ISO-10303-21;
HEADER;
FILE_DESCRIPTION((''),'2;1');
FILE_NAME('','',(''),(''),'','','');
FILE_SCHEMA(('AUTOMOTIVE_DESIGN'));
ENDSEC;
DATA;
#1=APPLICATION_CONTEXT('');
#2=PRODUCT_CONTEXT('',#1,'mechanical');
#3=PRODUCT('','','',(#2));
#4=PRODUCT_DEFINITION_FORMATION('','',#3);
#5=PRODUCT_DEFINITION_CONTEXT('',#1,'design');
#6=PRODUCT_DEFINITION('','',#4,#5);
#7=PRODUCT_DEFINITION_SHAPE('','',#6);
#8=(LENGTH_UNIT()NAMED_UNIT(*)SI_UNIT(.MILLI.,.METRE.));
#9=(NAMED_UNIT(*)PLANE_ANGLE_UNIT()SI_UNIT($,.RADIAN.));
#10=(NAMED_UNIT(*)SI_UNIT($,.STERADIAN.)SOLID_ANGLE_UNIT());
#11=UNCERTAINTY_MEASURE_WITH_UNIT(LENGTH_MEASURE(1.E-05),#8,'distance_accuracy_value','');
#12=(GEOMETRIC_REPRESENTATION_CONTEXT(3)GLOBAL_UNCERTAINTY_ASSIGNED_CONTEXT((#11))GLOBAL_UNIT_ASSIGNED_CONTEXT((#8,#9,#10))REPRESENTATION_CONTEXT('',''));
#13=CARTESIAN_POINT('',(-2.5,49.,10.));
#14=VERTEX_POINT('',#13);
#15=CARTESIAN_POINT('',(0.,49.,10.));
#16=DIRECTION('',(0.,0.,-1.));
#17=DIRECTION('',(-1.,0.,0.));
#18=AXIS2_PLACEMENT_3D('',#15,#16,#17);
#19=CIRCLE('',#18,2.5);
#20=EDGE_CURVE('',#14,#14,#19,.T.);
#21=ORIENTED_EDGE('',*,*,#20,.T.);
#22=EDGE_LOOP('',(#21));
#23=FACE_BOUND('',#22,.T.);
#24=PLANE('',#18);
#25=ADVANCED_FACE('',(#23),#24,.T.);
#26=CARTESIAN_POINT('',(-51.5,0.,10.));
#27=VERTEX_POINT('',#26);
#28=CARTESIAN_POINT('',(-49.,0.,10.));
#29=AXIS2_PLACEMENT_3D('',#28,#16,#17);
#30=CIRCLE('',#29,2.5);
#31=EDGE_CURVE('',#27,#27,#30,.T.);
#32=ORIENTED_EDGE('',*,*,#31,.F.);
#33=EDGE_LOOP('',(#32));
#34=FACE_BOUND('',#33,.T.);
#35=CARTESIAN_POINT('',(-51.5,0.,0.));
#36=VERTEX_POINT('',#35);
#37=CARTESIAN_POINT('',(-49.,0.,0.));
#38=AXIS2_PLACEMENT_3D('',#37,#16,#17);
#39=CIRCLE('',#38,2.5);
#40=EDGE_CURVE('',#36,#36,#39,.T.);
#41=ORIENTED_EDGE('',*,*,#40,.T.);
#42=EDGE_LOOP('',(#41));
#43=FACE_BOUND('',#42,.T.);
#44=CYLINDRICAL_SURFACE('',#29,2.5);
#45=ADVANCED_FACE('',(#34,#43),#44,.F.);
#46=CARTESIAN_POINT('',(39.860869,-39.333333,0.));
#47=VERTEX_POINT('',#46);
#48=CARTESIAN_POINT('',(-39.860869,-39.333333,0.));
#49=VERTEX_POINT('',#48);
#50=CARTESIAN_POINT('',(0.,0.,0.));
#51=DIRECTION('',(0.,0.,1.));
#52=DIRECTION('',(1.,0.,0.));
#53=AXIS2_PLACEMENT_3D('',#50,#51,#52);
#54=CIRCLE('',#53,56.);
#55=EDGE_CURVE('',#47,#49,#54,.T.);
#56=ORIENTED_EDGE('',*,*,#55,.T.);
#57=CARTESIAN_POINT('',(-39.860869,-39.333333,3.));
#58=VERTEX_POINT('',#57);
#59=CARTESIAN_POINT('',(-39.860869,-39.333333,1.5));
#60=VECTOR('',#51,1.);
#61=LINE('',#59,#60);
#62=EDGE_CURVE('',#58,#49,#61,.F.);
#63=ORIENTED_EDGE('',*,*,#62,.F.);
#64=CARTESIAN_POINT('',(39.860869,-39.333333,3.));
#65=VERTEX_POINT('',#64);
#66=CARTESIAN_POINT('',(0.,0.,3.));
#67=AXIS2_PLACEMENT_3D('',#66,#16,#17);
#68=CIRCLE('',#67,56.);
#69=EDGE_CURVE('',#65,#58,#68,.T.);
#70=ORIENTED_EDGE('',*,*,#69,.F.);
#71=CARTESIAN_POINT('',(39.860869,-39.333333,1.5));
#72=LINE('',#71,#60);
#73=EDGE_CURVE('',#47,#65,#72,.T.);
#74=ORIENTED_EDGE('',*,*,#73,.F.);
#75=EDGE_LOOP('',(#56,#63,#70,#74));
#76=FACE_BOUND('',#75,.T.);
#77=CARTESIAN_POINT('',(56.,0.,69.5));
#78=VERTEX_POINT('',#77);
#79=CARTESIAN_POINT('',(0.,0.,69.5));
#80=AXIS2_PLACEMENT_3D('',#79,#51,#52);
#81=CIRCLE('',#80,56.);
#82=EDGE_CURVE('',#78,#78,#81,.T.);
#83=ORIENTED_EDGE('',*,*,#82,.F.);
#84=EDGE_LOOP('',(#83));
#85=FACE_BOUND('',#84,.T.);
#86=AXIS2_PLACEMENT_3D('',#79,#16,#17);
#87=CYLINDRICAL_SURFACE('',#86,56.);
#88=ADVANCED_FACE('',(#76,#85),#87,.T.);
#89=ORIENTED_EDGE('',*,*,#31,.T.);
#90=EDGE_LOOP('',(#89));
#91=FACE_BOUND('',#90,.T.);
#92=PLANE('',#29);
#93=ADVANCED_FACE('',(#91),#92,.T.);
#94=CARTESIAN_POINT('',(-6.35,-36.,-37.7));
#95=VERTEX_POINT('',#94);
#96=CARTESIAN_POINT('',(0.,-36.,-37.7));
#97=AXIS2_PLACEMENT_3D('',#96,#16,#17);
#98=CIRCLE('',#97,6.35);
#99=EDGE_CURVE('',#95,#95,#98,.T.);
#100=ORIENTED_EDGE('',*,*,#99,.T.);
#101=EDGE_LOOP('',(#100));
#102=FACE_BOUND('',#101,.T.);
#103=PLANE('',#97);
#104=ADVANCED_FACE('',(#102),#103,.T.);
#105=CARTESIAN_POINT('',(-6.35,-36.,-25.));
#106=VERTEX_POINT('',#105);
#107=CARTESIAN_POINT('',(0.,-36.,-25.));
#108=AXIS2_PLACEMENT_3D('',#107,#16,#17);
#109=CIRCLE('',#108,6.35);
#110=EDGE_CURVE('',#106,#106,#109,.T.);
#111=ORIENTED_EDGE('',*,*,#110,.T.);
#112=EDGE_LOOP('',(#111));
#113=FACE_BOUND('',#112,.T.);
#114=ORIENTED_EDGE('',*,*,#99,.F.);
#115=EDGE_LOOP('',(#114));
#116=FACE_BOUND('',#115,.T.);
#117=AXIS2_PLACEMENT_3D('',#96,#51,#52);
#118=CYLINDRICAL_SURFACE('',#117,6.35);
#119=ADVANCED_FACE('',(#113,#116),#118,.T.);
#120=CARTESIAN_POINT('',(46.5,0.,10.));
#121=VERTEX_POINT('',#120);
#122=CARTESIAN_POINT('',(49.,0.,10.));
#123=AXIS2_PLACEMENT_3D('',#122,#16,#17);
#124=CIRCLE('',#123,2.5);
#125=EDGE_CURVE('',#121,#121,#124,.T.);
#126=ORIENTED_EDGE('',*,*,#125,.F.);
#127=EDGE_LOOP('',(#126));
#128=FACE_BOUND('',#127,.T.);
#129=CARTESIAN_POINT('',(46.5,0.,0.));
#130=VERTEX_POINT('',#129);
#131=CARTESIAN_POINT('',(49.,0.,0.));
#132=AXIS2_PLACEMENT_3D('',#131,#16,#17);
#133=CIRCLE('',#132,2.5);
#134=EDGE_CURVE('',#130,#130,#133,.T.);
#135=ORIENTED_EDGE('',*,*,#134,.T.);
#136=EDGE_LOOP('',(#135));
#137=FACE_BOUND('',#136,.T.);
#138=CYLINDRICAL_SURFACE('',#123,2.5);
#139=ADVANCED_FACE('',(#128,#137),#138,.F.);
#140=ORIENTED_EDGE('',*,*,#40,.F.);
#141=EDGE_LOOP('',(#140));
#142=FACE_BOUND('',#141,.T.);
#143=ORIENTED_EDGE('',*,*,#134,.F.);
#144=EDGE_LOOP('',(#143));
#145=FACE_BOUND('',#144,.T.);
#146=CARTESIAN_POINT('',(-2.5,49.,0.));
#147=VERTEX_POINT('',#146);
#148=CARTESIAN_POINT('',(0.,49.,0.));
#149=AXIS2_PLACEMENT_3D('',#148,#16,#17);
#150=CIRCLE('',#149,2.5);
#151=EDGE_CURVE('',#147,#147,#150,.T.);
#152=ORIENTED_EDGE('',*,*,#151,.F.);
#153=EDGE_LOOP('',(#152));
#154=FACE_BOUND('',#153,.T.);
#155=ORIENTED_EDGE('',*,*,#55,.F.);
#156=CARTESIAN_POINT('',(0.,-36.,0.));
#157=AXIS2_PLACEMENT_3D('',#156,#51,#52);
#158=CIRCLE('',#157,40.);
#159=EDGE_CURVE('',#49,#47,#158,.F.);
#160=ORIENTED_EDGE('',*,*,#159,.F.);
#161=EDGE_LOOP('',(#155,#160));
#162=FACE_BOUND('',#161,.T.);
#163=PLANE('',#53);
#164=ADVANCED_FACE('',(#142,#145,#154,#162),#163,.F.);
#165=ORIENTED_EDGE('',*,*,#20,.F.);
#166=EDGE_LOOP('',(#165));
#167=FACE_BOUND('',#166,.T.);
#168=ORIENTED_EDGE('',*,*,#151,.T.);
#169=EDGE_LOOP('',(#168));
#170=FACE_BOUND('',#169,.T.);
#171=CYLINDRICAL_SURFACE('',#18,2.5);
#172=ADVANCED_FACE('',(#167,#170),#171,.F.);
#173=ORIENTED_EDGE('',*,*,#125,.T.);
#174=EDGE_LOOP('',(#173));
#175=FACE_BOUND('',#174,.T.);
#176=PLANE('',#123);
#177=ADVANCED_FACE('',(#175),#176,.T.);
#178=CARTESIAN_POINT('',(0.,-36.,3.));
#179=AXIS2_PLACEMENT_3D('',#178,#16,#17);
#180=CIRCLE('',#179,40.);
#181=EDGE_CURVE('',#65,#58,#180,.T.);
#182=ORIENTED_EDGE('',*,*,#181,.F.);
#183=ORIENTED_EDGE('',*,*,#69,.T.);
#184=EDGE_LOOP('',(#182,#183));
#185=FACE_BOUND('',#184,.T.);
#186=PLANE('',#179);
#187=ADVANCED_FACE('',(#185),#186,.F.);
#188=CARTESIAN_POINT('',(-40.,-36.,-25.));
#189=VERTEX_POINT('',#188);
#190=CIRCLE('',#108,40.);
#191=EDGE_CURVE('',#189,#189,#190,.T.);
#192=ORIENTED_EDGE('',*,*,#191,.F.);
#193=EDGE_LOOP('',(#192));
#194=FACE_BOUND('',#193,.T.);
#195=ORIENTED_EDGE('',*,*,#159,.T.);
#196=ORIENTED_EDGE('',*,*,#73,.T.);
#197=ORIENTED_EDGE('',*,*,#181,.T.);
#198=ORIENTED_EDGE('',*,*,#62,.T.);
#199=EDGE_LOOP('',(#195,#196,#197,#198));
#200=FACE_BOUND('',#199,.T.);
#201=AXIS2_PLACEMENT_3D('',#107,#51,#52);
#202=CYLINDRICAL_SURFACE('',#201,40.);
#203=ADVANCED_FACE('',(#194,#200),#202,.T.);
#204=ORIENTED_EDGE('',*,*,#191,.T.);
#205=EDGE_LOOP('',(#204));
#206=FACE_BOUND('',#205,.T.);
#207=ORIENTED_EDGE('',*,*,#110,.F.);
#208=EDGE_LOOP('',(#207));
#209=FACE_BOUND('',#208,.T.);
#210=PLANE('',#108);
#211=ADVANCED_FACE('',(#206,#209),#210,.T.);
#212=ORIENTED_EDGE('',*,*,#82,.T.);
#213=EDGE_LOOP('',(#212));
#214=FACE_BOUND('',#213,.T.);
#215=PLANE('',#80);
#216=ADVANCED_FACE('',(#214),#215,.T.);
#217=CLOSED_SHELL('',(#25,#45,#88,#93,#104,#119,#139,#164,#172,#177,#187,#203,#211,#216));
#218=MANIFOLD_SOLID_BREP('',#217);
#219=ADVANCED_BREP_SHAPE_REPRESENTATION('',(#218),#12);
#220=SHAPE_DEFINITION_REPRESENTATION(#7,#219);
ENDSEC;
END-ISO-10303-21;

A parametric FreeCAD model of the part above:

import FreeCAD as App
import Part
import Sketcher

V = App.Vector
Q = App.Units.Quantity

doc = App.newDocument("Part")
body = doc.addObject("PartDesign::Body", "Body")

# Sketch on XY plane
sketch1 = body.newObject("Sketcher::SketchObject", "Sketch")
sketch1.AttachmentSupport = (doc.getObject("XY_Plane"), [""])
sketch1.MapMode = "FlatFace"
sketch1.addGeometry(Part.Circle(V(0, 0, 0), V(0, 0, 1), 56), False)
sketch1.addConstraint(Sketcher.Constraint("Coincident", 0, 3, -1, 1))
sketch1.addConstraint(Sketcher.Constraint("Diameter", 0, Q("112 mm")))
pad1 = body.newObject("PartDesign::Pad", "Pad")
pad1.Profile = sketch1
pad1.Length = 69.5

# Sketch on XY plane
sketch2 = body.newObject("Sketcher::SketchObject", "Sketch001")
sketch2.AttachmentSupport = (doc.getObject("XY_Plane"), [""])
sketch2.MapMode = "FlatFace"
sketch2.addGeometry(Part.Circle(V(0, -36, 0), V(0, 0, 1), 40), False)
sketch2.addConstraint(Sketcher.Constraint("PointOnObject", 0, 3, -2))
sketch2.addConstraint(Sketcher.Constraint("Diameter", 0, Q("80 mm")))
sketch2.addConstraint(Sketcher.Constraint("DistanceY", 0, 3, -1, 1, Q("36 mm")))
pad2 = body.newObject("PartDesign::Pad", "Pad001")
pad2.Profile = sketch2
pad2.Type = "TwoLengths"
pad2.Length = 25
pad2.Length2 = 3
pad2.Reversed = True

# Sketch on XY plane
sketch3 = body.newObject("Sketcher::SketchObject", "Sketch002")
sketch3.AttachmentSupport = (doc.getObject("XY_Plane"), [""])
sketch3.MapMode = "FlatFace"
sketch3.addGeometry(Part.Circle(V(49, 0, 0), V(0, 0, 1), 2.5), False)
sketch3.addGeometry(Part.Circle(V(0, 49, 0), V(0, 0, 1), 2.5), False)
sketch3.addGeometry(Part.Circle(V(-49, 0, 0), V(0, 0, 1), 2.5), False)
sketch3.addConstraint(Sketcher.Constraint("Equal", 0, 1))
sketch3.addConstraint(Sketcher.Constraint("Equal", 1, 2))
sketch3.addConstraint(Sketcher.Constraint("Symmetric", 0, 3, 2, 3, -1, 1))
sketch3.addConstraint(Sketcher.Constraint("PointOnObject", 0, 3, -1))
sketch3.addConstraint(Sketcher.Constraint("PointOnObject", 1, 3, -2))
sketch3.addConstraint(Sketcher.Constraint("Diameter", 0, Q("5 mm")))
sketch3.addConstraint(Sketcher.Constraint("DistanceX", -1, 1, 0, 3, Q("49 mm")))
sketch3.addConstraint(Sketcher.Constraint("DistanceY", -1, 1, 1, 3, Q("49 mm")))
pocket1 = body.newObject("PartDesign::Pocket", "Pocket")
pocket1.Profile = sketch3
pocket1.Length = 10
pocket1.Reversed = True

# Sketch on XY plane
sketch4 = body.newObject("Sketcher::SketchObject", "Sketch003")
sketch4.AttachmentSupport = (doc.getObject("XY_Plane"), [""])
sketch4.MapMode = "FlatFace"
sketch4.AttachmentOffset = App.Placement(V(0, 0, -25), App.Rotation())
sketch4.addGeometry(Part.Circle(V(0, -36, 0), V(0, 0, 1), 6), False)
sketch4.addConstraint(Sketcher.Constraint("PointOnObject", 0, 3, -2))
sketch4.addConstraint(Sketcher.Constraint("Diameter", 0, Q("12.7 mm")))
sketch4.addConstraint(Sketcher.Constraint("DistanceY", 0, 3, -1, 1, Q("36 mm")))
pad3 = body.newObject("PartDesign::Pad", "Pad002")
pad3.Profile = sketch4
pad3.Length = 12.7
pad3.Reversed = True

doc.recompute()
